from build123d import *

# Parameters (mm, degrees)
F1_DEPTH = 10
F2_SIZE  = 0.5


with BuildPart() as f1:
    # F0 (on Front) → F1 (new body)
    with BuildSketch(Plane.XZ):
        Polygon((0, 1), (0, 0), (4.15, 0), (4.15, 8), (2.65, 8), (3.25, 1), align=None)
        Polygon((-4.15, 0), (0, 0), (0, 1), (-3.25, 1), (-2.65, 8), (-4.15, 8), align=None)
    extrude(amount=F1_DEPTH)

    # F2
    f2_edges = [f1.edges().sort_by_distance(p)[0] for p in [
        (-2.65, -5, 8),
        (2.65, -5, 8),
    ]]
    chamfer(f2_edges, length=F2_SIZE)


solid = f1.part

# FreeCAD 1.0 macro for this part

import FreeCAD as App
import Part
import Sketcher


def edges_at(feature, points):
    """Names of the edges that pass closest to the given points."""
    edges = feature.Shape.Edges
    near = lambda p: min(range(len(edges)), key=lambda i: edges[i].distToShape(Part.Vertex(*p))[0])
    return sorted({f"Edge{near(p) + 1}" for p in points})

doc = App.newDocument("Part")
body = doc.addObject("PartDesign::Body", "Body")

# Sketch on XZ plane
sketch1 = body.newObject("Sketcher::SketchObject", "Sketch")
sketch1.AttachmentSupport = (doc.getObject("XZ_Plane"), [""])
sketch1.MapMode = "FlatFace"
sketch1.addGeometry([
    Part.LineSegment(App.Vector(4.2, 0, 0), App.Vector(4.2, 8, 0)),  # 0
    Part.LineSegment(App.Vector(4.2, 8, 0), App.Vector(2.6, 8, 0)),  # 1
    Part.LineSegment(App.Vector(2.6, 8, 0), App.Vector(3.2, 1, 0)),  # 2
    Part.LineSegment(App.Vector(3.2, 1, 0), App.Vector(-3.2, 1, 0)),  # 3
    Part.LineSegment(App.Vector(-3.2, 1, 0), App.Vector(-2.6, 8, 0)),  # 4
    Part.LineSegment(App.Vector(-2.6, 8, 0), App.Vector(-4.2, 8, 0)),  # 5
    Part.LineSegment(App.Vector(-4.2, 8, 0), App.Vector(-4.2, 0, 0)),  # 6
    Part.LineSegment(App.Vector(-4.2, 0, 0), App.Vector(4.2, 0, 0)),  # 7
], False)
sketch1.addConstraint([
    Sketcher.Constraint("Coincident", 0, 2, 1, 1),
    Sketcher.Constraint("Coincident", 1, 2, 2, 1),
    Sketcher.Constraint("Coincident", 2, 2, 3, 1),
    Sketcher.Constraint("Coincident", 3, 2, 4, 1),
    Sketcher.Constraint("Coincident", 4, 2, 5, 1),
    Sketcher.Constraint("Coincident", 5, 2, 6, 1),
    Sketcher.Constraint("Coincident", 6, 2, 7, 1),
    Sketcher.Constraint("Coincident", 7, 2, 0, 1),
    Sketcher.Constraint("Vertical", 0),
    Sketcher.Constraint("Horizontal", 1),
    Sketcher.Constraint("Horizontal", 3),
    Sketcher.Constraint("Horizontal", 5),
    Sketcher.Constraint("Vertical", 6),
    Sketcher.Constraint("Horizontal", 7),
    Sketcher.Constraint("Symmetric", 6, 2, 7, 2, -1, 1),
    Sketcher.Constraint("Symmetric", 1, 2, 4, 2, -2),
    Sketcher.Constraint("Equal", 2, 4),
    Sketcher.Constraint("DistanceY", 0, 1, 0, 2, 8.0),
    Sketcher.Constraint("DistanceX", 1, 2, 1, 1, 1.5),
    Sketcher.Constraint("DistanceX", 3, 2, 3, 1, 6.5),
    Sketcher.Constraint("DistanceX", 7, 1, 7, 2, 8.3),
    Sketcher.Constraint("DistanceY", -1, 1, 2, 2, 1.0),
])
pad1 = body.newObject("PartDesign::Pad", "Pad")
pad1.Profile = sketch1
pad1.Length = 10
doc.recompute()

chamfer = body.newObject("PartDesign::Chamfer", "Chamfer")
chamfer.Base = (pad1, edges_at(pad1, [(-2.65, -5, 8), (2.65, -5, 8)]))
chamfer.Size = 0.5

doc.recompute()
